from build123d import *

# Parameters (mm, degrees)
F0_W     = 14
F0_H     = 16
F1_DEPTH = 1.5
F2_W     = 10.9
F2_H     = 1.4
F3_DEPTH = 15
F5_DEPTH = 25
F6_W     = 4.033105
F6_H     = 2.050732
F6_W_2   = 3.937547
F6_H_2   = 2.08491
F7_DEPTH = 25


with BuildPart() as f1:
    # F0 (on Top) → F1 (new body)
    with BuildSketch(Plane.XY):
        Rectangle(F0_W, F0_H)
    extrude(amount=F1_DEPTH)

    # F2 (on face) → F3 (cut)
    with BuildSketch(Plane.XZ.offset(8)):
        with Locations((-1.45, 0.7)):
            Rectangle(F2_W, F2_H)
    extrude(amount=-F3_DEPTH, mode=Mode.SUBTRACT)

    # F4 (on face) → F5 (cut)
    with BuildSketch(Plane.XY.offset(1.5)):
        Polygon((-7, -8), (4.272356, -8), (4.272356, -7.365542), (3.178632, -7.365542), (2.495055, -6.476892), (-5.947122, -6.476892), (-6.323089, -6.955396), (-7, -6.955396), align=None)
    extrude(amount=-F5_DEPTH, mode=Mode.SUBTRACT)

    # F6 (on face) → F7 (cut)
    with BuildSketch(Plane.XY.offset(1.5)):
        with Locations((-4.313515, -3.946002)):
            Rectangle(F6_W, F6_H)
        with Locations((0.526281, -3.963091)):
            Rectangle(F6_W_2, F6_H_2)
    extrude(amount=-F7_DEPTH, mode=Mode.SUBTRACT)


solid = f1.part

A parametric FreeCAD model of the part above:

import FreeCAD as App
import Part
import Sketcher

V = App.Vector
Q = App.Units.Quantity

doc = App.newDocument("Part")
params = doc.addObject("Spreadsheet::Sheet", "Params")
for row, (alias, value) in enumerate([
    ("sketch1_width", "14 mm"),
    ("sketch1_height", "16 mm"),
    ("pad1_length", "1.5 mm"),
    ("sketch2_width", "10.9 mm"),
    ("sketch2_height", "1.4 mm"),
    ("pocket1_length", "15 mm"),
    ("pocket2_length", "25 mm"),
    ("pocket3_length", "25 mm"),
], start=1):
    params.set(f"A{row}", alias)
    params.set(f"B{row}", "=" + value)
    params.setAlias(f"B{row}", alias)

body = doc.addObject("PartDesign::Body", "Body")

# Sketch on XY plane
sketch1 = doc.addObject("Sketcher::SketchObject", "Sketch")
body.addObject(sketch1)
sketch1.AttachmentSupport = (doc.XY_Plane, [""])
sketch1.MapMode = "FlatFace"
sketch1.addGeometry([
    Part.LineSegment(V(-7, 8, 0), V(-7, -8, 0)),
    Part.LineSegment(V(-7, -8, 0), V(7, -8, 0)),
    Part.LineSegment(V(7, -8, 0), V(7, 8, 0)),
    Part.LineSegment(V(7, 8, 0), V(-7, 8, 0)),
], False)
sketch1.addConstraint([
    Sketcher.Constraint("Coincident", 0, 2, 1, 1),
    Sketcher.Constraint("Coincident", 1, 2, 2, 1),
    Sketcher.Constraint("Coincident", 2, 2, 3, 1),
    Sketcher.Constraint("Coincident", 3, 2, 0, 1),
    Sketcher.Constraint("Vertical", 0),
    Sketcher.Constraint("Horizontal", 1),
    Sketcher.Constraint("Vertical", 2),
    Sketcher.Constraint("Horizontal", 3),
    Sketcher.Constraint("Symmetric", 0, 2, 2, 2, -1, 1),
    Sketcher.Constraint("DistanceX", 1, 1, 1, 2, Q("14 mm")),
    Sketcher.Constraint("DistanceY", 0, 2, 0, 1, Q("16 mm")),
])
sketch1.setExpression("Constraints[9]", "Params.sketch1_width")
sketch1.setExpression("Constraints[10]", "Params.sketch1_height")
pad1 = doc.addObject("PartDesign::Pad", "Pad")
body.addObject(pad1)
pad1.Profile = sketch1
pad1.setExpression("Length", "Params.pad1_length")

# Sketch on XZ plane
sketch2 = doc.addObject("Sketcher::SketchObject", "Sketch001")
body.addObject(sketch2)
sketch2.AttachmentSupport = (doc.XZ_Plane, [""])
sketch2.MapMode = "FlatFace"
sketch2.AttachmentOffset = App.Placement(V(0, 0, 8), App.Rotation())
sketch2.addGeometry([
    Part.LineSegment(V(-6.9, 1.4, 0), V(-6.9, 0, 0)),
    Part.LineSegment(V(-6.9, 0, 0), V(4, 0, 0)),
    Part.LineSegment(V(4, 0, 0), V(4, 1.4, 0)),
    Part.LineSegment(V(4, 1.4, 0), V(-6.9, 1.4, 0)),
], False)
sketch2.addConstraint([
    Sketcher.Constraint("Coincident", 0, 2, 1, 1),
    Sketcher.Constraint("Coincident", 1, 2, 2, 1),
    Sketcher.Constraint("Coincident", 2, 2, 3, 1),
    Sketcher.Constraint("Coincident", 3, 2, 0, 1),
    Sketcher.Constraint("Vertical", 0),
    Sketcher.Constraint("Horizontal", 1),
    Sketcher.Constraint("Vertical", 2),
    Sketcher.Constraint("Horizontal", 3),
    Sketcher.Constraint("PointOnObject", 0, 2, -1),
    Sketcher.Constraint("DistanceX", 1, 1, 1, 2, Q("10.9 mm")),
    Sketcher.Constraint("DistanceY", 0, 2, 0, 1, Q("1.4 mm")),
    Sketcher.Constraint("DistanceX", -1, 1, 1, 2, Q("4 mm")),
])
sketch2.setExpression("Constraints[9]", "Params.sketch2_width")
sketch2.setExpression("Constraints[10]", "Params.sketch2_height")
pocket1 = doc.addObject("PartDesign::Pocket", "Pocket")
body.addObject(pocket1)
pocket1.Profile = sketch2
pocket1.setExpression("Length", "Params.pocket1_length")

# Sketch on XY plane
sketch3 = doc.addObject("Sketcher::SketchObject", "Sketch002")
body.addObject(sketch3)
sketch3.AttachmentSupport = (doc.XY_Plane, [""])
sketch3.MapMode = "FlatFace"
sketch3.AttachmentOffset = App.Placement(V(0, 0, 1.5), App.Rotation())
sketch3.addGeometry([
    Part.LineSegment(V(-7, -8, 0), V(4.3, -8, 0)),  # 0
    Part.LineSegment(V(4.3, -8, 0), V(4.3, -7.4, 0)),  # 1
    Part.LineSegment(V(4.3, -7.4, 0), V(3.2, -7.4, 0)),  # 2
    Part.LineSegment(V(3.2, -7.4, 0), V(2.5, -6.5, 0)),  # 3
    Part.LineSegment(V(2.5, -6.5, 0), V(-5.9, -6.5, 0)),  # 4
    Part.LineSegment(V(-5.9, -6.5, 0), V(-6.3, -7, 0)),  # 5
    Part.LineSegment(V(-6.3, -7, 0), V(-7, -7, 0)),  # 6
    Part.LineSegment(V(-7, -7, 0), V(-7, -8, 0)),  # 7
], False)
sketch3.addConstraint([
    Sketcher.Constraint("Coincident", 0, 2, 1, 1),
    Sketcher.Constraint("Coincident", 1, 2, 2, 1),
    Sketcher.Constraint("Coincident", 2, 2, 3, 1),
    Sketcher.Constraint("Coincident", 3, 2, 4, 1),
    Sketcher.Constraint("Coincident", 4, 2, 5, 1),
    Sketcher.Constraint("Coincident", 5, 2, 6, 1),
    Sketcher.Constraint("Coincident", 6, 2, 7, 1),
    Sketcher.Constraint("Coincident", 7, 2, 0, 1),
    Sketcher.Constraint("Horizontal", 0),
    Sketcher.Constraint("Vertical", 1),
    Sketcher.Constraint("Horizontal", 2),
    Sketcher.Constraint("Horizontal", 4),
    Sketcher.Constraint("Horizontal", 6),
    Sketcher.Constraint("Vertical", 7),
    Sketcher.Constraint("DistanceY", 0, 2, -1, 1, Q("8 mm")),
    Sketcher.Constraint("DistanceX", 6, 2, -1, 1, Q("7 mm")),
    Sketcher.Constraint("DistanceX", 6, 2, 6, 1, Q("0.676911 mm")),
    Sketcher.Constraint("DistanceY", 1, 1, 1, 2, Q("0.634458 mm")),
    Sketcher.Constraint("DistanceX", 3, 2, 1, 2, Q("1.777301 mm")),
    Sketcher.Constraint("Distance", 3, Q("1.12115 mm")),
    Sketcher.Constraint("DistanceX", 0, 1, 0, 2, Q("11.272356 mm")),
    Sketcher.Constraint("DistanceX", 2, 2, 2, 1, Q("1.093724 mm")),
    Sketcher.Constraint("DistanceX", 4, 2, 4, 1, Q("8.442177 mm")),
    Sketcher.Constraint("DistanceY", 7, 2, 7, 1, Q("1.044604 mm")),
])
pocket2 = doc.addObject("PartDesign::Pocket", "Pocket001")
body.addObject(pocket2)
pocket2.Profile = sketch3
pocket2.setExpression("Length", "Params.pocket2_length")

# Sketch on XY plane
sketch4 = doc.addObject("Sketcher::SketchObject", "Sketch003")
body.addObject(sketch4)
sketch4.AttachmentSupport = (doc.XY_Plane, [""])
sketch4.MapMode = "FlatFace"
sketch4.AttachmentOffset = App.Placement(V(0, 0, 1.5), App.Rotation())
sketch4.addGeometry([
    Part.LineSegment(V(-6.3, -2.9, 0), V(-6.3, -5, 0)),  # 0
    Part.LineSegment(V(-6.3, -5, 0), V(-2.3, -5, 0)),  # 1
    Part.LineSegment(V(-2.3, -5, 0), V(-2.3, -2.9, 0)),  # 2
    Part.LineSegment(V(-2.3, -2.9, 0), V(-6.3, -2.9, 0)),  # 3
    Part.LineSegment(V(-1.4, -2.9, 0), V(-1.4, -5, 0)),  # 4
    Part.LineSegment(V(-1.4, -5, 0), V(2.5, -5, 0)),  # 5
    Part.LineSegment(V(2.5, -5, 0), V(2.5, -2.9, 0)),  # 6
    Part.LineSegment(V(2.5, -2.9, 0), V(-1.4, -2.9, 0)),  # 7
], False)
sketch4.addConstraint([
    Sketcher.Constraint("Coincident", 0, 2, 1, 1),
    Sketcher.Constraint("Coincident", 1, 2, 2, 1),
    Sketcher.Constraint("Coincident", 2, 2, 3, 1),
    Sketcher.Constraint("Coincident", 3, 2, 0, 1),
    Sketcher.Constraint("Coincident", 4, 2, 5, 1),
    Sketcher.Constraint("Coincident", 5, 2, 6, 1),
    Sketcher.Constraint("Coincident", 6, 2, 7, 1),
    Sketcher.Constraint("Coincident", 7, 2, 4, 1),
    Sketcher.Constraint("Vertical", 0),
    Sketcher.Constraint("Horizontal", 1),
    Sketcher.Constraint("Vertical", 2),
    Sketcher.Constraint("Horizontal", 3),
    Sketcher.Constraint("Vertical", 4),
    Sketcher.Constraint("Horizontal", 5),
    Sketcher.Constraint("Vertical", 6),
    Sketcher.Constraint("Horizontal", 7),
    Sketcher.Constraint("Horizontal", 3, 2, 6, 2),
    Sketcher.Constraint("DistanceY", 0, 2, 0, 1, Q("2.050732 mm")),
    Sketcher.Constraint("DistanceY", 4, 2, 4, 1, Q("2.08491 mm")),
    Sketcher.Constraint("DistanceX", 1, 1, 1, 2, Q("4.033105 mm")),
    Sketcher.Constraint("DistanceX", 5, 1, 5, 2, Q("3.937547 mm")),
    Sketcher.Constraint("DistanceX", 1, 2, 4, 2, Q("0.85447 mm")),
    Sketcher.Constraint("DistanceX", 0, 2, -1, 1, Q("6.330068 mm")),
    Sketcher.Constraint("DistanceY", 0, 2, -1, 1, Q("4.971368 mm")),
])
pocket3 = doc.addObject("PartDesign::Pocket", "Pocket002")
body.addObject(pocket3)
pocket3.Profile = sketch4
pocket3.setExpression("Length", "Params.pocket3_length")

doc.recompute()
